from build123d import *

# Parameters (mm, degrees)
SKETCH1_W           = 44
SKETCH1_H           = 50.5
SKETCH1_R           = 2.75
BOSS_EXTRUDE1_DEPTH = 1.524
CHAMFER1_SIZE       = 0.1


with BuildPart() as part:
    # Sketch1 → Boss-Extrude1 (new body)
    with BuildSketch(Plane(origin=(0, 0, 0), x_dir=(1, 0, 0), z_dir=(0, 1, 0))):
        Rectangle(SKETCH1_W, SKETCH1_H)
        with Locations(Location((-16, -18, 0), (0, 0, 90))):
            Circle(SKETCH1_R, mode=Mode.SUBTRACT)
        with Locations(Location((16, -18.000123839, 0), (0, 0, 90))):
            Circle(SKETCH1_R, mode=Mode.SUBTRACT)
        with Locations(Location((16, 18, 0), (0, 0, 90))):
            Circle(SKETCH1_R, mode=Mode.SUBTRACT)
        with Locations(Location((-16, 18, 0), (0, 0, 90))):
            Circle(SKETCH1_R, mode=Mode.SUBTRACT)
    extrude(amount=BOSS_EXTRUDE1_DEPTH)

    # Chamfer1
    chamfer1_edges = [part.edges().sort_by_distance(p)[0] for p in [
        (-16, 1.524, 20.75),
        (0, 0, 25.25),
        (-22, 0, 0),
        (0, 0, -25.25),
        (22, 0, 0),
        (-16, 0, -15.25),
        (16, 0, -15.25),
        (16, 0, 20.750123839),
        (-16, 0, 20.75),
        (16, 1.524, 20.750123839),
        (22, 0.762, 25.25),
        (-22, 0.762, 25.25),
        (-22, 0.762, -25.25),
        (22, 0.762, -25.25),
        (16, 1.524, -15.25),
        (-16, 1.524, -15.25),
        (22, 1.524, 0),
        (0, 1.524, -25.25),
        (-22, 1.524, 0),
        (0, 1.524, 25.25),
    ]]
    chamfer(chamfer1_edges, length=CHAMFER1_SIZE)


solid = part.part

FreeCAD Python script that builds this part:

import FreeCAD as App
import Part
import Sketcher

V = App.Vector

doc = App.newDocument("Part")
params = doc.addObject("Spreadsheet::Sheet", "Params")
for row, (alias, value) in enumerate([
    ("sketch1_diameter", "5.5 mm"),
    ("sketch1_width", "44 mm"),
    ("sketch1_height", "50.5 mm"),
    ("pad1_length", "1.524 mm"),
    ("chamfer_size", "0.1 mm"),
], start=1):
    params.set(f"A{row}", alias)
    params.set(f"B{row}", "=" + value)
    params.setAlias(f"B{row}", alias)

body = doc.addObject("PartDesign::Body", "Body")

sketch1 = body.newObject("Sketcher::SketchObject", "Sketch")
sketch1.AttachmentSupport = (doc.getObject("XZ_Plane"), [""])
sketch1.MapMode = "FlatFace"
sketch1.addGeometry(Part.LineSegment(V(-22, -25.2, 0), V(-22, 25.2, 0)), False)
sketch1.addGeometry(Part.LineSegment(V(-22, 25.2, 0), V(22, 25.2, 0)), False)
sketch1.addGeometry(Part.LineSegment(V(22, 25.2, 0), V(22, -25.2, 0)), False)
sketch1.addGeometry(Part.LineSegment(V(22, -25.2, 0), V(-22, -25.2, 0)), False)
sketch1.addGeometry(Part.Circle(V(-16, 18, 0), V(0, 0, 1), 2.8), False)
sketch1.addGeometry(Part.Circle(V(16, 18, 0), V(0, 0, 1), 2.8), False)
sketch1.addGeometry(Part.Circle(V(-16, -18, 0), V(0, 0, 1), 2.8), False)
sketch1.addGeometry(Part.Circle(V(16, -18, 0), V(0, 0, 1), 2.8), False)
sketch1.addConstraint(Sketcher.Constraint("Coincident", 0, 2, 1, 1))
sketch1.addConstraint(Sketcher.Constraint("Coincident", 1, 2, 2, 1))
sketch1.addConstraint(Sketcher.Constraint("Coincident", 2, 2, 3, 1))
sketch1.addConstraint(Sketcher.Constraint("Coincident", 3, 2, 0, 1))
sketch1.addConstraint(Sketcher.Constraint("Vertical", 0))
sketch1.addConstraint(Sketcher.Constraint("Horizontal", 1))
sketch1.addConstraint(Sketcher.Constraint("Vertical", 2))
sketch1.addConstraint(Sketcher.Constraint("Horizontal", 3))
sketch1.addConstraint(Sketcher.Constraint("Equal", 4, 5))
sketch1.addConstraint(Sketcher.Constraint("Equal", 5, 6))
sketch1.addConstraint(Sketcher.Constraint("Equal", 6, 7))
sketch1.addConstraint(Sketcher.Constraint("Symmetric", 4, 3, 7, 3, -1, 1))
sketch1.addConstraint(Sketcher.Constraint("Symmetric", 0, 2, 2, 2, -1, 1))
sketch1.addConstraint(Sketcher.Constraint("Symmetric", 6, 3, 7, 3, -2))
sketch1.addConstraint(Sketcher.Constraint("Vertical", 5, 3, 7, 3))
sketch1.addConstraint(Sketcher.Constraint("Diameter", 4, 5.5))
sketch1.addConstraint(Sketcher.Constraint("DistanceX", 1, 1, 1, 2, 44.0))
sketch1.addConstraint(Sketcher.Constraint("DistanceY", 0, 1, 0, 2, 50.5))
sketch1.addConstraint(Sketcher.Constraint("DistanceX", 4, 3, -1, 1, 16.0))
sketch1.addConstraint(Sketcher.Constraint("DistanceY", -1, 1, 4, 3, 18.0))
sketch1.addConstraint(Sketcher.Constraint("DistanceY", -1, 1, 5, 3, 18.000124))
sketch1.setExpression("Constraints[15]", "Params.sketch1_diameter")
sketch1.setExpression("Constraints[16]", "Params.sketch1_width")
sketch1.setExpression("Constraints[17]", "Params.sketch1_height")
pad1 = body.newObject("PartDesign::Pad", "Pad")
pad1.Profile = sketch1
pad1.setExpression("Length", "Params.pad1_length")
pad1.Reversed = True
doc.recompute()

chamfer = body.newObject("PartDesign::Chamfer", "Chamfer")
chamfer.Base = (pad1, ["Edge1"])
chamfer.UseAllEdges = True
chamfer.setExpression("Size", "Params.chamfer_size")

doc.recompute()
